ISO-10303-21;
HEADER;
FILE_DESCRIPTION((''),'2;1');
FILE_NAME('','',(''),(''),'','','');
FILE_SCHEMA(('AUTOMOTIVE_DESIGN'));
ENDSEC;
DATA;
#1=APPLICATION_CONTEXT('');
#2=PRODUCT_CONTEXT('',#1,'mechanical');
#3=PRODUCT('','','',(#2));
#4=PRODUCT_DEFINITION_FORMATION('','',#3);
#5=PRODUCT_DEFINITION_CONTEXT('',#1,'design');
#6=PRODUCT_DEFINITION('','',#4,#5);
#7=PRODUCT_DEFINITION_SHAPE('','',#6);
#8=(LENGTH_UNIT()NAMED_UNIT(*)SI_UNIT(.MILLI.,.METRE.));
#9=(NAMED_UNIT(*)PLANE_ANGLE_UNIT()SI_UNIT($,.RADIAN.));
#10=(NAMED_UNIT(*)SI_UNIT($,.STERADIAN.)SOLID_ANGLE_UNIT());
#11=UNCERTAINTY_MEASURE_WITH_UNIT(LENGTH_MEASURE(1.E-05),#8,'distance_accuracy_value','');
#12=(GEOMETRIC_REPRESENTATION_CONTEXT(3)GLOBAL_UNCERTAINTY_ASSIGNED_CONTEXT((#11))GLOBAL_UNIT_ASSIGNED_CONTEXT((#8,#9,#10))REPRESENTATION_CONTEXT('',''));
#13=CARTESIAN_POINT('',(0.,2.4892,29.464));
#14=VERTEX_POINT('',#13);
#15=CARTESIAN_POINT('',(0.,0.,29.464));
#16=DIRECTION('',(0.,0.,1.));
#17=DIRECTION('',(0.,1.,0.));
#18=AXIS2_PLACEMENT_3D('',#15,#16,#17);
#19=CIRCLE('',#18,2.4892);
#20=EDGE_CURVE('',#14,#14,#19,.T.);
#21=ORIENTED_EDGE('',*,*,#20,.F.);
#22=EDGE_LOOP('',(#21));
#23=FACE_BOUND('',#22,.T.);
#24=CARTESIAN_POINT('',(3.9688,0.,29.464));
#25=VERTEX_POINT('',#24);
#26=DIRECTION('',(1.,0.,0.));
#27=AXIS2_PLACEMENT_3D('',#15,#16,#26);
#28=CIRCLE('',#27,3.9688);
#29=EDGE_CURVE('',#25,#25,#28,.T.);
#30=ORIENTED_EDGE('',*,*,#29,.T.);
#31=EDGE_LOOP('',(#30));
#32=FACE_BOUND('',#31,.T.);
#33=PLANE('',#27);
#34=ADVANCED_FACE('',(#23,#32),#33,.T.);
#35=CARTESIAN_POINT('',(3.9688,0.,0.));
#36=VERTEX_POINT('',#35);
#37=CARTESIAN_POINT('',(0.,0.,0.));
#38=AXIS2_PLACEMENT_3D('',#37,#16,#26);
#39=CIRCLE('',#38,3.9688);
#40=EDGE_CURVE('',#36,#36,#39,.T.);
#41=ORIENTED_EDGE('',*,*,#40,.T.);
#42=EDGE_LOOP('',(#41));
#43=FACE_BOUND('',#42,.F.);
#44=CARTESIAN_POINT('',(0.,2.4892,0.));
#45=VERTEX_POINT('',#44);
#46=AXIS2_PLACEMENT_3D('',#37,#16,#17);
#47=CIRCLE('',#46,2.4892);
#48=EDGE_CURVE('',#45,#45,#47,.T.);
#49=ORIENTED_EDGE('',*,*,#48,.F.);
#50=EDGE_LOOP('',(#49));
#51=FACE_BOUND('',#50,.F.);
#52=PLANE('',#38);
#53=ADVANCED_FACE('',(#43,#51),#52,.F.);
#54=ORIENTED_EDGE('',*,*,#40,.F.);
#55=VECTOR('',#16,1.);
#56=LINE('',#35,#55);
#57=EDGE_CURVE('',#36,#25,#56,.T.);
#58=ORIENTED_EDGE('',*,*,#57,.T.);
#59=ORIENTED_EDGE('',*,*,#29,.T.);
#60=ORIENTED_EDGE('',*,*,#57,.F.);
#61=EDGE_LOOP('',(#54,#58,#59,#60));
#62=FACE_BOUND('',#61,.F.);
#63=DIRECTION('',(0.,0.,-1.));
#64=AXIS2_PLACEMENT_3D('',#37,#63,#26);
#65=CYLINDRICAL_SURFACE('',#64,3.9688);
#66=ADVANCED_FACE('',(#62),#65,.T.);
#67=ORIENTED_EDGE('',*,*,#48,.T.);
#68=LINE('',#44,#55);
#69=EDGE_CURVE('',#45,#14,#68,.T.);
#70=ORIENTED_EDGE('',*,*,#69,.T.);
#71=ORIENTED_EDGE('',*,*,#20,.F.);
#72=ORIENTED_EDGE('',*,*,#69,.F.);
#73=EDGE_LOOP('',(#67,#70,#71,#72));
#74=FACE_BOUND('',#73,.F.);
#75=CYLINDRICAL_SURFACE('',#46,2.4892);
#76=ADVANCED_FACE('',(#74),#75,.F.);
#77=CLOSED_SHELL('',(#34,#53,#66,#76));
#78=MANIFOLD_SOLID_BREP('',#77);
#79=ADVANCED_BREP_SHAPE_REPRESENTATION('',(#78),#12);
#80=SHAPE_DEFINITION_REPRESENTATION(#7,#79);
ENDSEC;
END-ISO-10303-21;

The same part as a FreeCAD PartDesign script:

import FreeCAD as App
import Part
import Sketcher

V = App.Vector
Q = App.Units.Quantity

doc = App.newDocument("Part")
params = doc.addObject("Spreadsheet::Sheet", "Params")
for row, (alias, value) in enumerate([
    ("sketch1_diameter", "0.3125 in"),
    ("pad1_length", "1.16 in"),
    ("sketch2_diameter", "0.196 in"),
    ("hole_diameter", "0.196 in"),
], start=1):
    params.set(f"A{row}", alias)
    params.set(f"B{row}", "=" + value)
    params.setAlias(f"B{row}", alias)

body = doc.addObject("PartDesign::Body", "Body")

# Sketch on XY plane
sketch1 = body.newObject("Sketcher::SketchObject", "Sketch")
sketch1.AttachmentSupport = (doc.getObject("XY_Plane"), [""])
sketch1.MapMode = "FlatFace"
sketch1.addGeometry(Part.Circle(V(0, 0, 0), V(0, 0, 1), 4), False)
sketch1.addConstraint(Sketcher.Constraint("Coincident", 0, 3, -1, 1))
sketch1.addConstraint(Sketcher.Constraint("Diameter", 0, Q("0.3125 in")))
sketch1.setExpression("Constraints[1]", "Params.sketch1_diameter")
pad1 = body.newObject("PartDesign::Pad", "Pad")
pad1.Profile = sketch1
pad1.setExpression("Length", "Params.pad1_length")

# Sketch on XY plane
sketch2 = body.newObject("Sketcher::SketchObject", "Sketch001")
sketch2.AttachmentSupport = (doc.getObject("XY_Plane"), [""])
sketch2.MapMode = "FlatFace"
sketch2.addGeometry(Part.Circle(V(0, 0, 0), V(0, 0, 1), 2.5), False)
sketch2.addConstraint(Sketcher.Constraint("Coincident", 0, 3, -1, 1))
sketch2.addConstraint(Sketcher.Constraint("Diameter", 0, Q("0.196 in")))
sketch2.setExpression("Constraints[1]", "Params.sketch2_diameter")
doc.recompute()
hole = body.newObject("PartDesign::Hole", "Hole")
hole.Profile = sketch2
hole.ThreadType = "None"
hole.setExpression("Diameter", "Params.hole_diameter")
hole.DepthType = "ThroughAll"
hole.Reversed = True

doc.recompute()
